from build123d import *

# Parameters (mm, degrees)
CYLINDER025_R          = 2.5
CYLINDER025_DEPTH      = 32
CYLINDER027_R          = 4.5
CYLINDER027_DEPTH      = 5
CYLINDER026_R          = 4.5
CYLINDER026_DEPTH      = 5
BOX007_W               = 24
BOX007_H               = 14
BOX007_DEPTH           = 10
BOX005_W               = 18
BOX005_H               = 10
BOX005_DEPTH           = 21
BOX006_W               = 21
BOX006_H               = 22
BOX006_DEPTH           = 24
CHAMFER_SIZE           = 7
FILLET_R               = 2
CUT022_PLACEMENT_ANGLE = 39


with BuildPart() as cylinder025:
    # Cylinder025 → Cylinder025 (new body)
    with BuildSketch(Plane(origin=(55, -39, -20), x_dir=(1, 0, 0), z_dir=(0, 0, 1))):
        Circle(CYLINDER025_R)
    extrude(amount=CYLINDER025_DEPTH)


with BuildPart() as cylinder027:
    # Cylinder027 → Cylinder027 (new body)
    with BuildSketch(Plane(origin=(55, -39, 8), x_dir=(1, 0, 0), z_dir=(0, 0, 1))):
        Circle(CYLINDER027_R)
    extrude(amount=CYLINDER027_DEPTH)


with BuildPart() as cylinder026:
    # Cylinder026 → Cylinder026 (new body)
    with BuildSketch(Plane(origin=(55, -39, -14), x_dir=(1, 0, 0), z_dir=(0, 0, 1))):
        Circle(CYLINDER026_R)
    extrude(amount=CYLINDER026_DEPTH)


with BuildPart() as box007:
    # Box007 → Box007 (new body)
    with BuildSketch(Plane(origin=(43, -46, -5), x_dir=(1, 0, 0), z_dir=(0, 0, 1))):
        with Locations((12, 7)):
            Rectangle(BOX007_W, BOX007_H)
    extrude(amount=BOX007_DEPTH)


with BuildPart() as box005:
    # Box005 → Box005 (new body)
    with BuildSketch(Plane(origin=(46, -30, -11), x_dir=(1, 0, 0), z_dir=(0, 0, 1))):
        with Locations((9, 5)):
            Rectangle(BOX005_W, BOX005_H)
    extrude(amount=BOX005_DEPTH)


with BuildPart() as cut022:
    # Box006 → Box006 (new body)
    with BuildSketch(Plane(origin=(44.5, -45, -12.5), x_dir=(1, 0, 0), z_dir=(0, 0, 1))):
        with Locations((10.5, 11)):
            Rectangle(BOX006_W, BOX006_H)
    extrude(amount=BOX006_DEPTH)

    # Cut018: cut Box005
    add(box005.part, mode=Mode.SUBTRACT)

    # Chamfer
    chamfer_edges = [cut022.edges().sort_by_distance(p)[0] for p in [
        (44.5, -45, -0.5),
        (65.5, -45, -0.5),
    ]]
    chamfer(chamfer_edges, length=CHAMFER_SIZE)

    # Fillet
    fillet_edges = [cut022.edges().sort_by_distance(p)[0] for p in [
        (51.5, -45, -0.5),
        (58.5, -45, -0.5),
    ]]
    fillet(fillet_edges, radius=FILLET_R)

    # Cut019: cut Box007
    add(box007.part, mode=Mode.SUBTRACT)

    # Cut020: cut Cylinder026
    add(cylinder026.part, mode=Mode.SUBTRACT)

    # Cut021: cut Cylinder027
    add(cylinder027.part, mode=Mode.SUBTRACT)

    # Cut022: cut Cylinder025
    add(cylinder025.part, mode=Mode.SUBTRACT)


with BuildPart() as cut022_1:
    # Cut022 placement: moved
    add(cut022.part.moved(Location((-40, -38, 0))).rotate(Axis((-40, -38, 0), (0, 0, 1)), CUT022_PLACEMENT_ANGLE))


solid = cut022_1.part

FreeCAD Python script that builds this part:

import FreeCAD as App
import Part
import Sketcher

V = App.Vector
Q = App.Units.Quantity


def edges_at(feature, points):
    """Names of the edges that pass closest to the given points."""
    edges = feature.Shape.Edges
    near = lambda p: min(range(len(edges)), key=lambda i: edges[i].distToShape(Part.Vertex(*p))[0])
    return sorted({f"Edge{near(p) + 1}" for p in points})

doc = App.newDocument("Part")
body = doc.addObject("PartDesign::Body", "Body")

# Sketch on XY plane
sketch1 = doc.addObject("Sketcher::SketchObject", "Sketch")
body.addObject(sketch1)
sketch1.AttachmentSupport = (doc.XY_Plane, [""])
sketch1.MapMode = "FlatFace"
sketch1.AttachmentOffset = App.Placement(V(0, 0, -20), App.Rotation())
sketch1.addGeometry(Part.Circle(V(55, -39, 0), V(0, 0, 1), 2.5), False)
sketch1.addConstraint([
    Sketcher.Constraint("Diameter", 0, Q("5 mm")),
    Sketcher.Constraint("DistanceX", -1, 1, 0, 3, Q("55 mm")),
    Sketcher.Constraint("DistanceY", 0, 3, -1, 1, Q("39 mm")),
])
pad1 = doc.addObject("PartDesign::Pad", "Pad")
body.addObject(pad1)
pad1.Profile = sketch1
pad1.Length = 32
body2 = doc.addObject("PartDesign::Body", "Body001")

# Sketch on XY plane
sketch2 = doc.addObject("Sketcher::SketchObject", "Sketch001")
body2.addObject(sketch2)
sketch2.AttachmentSupport = (doc.getObject("XY_Plane001"), [""])
sketch2.MapMode = "FlatFace"
sketch2.AttachmentOffset = App.Placement(V(0, 0, 8), App.Rotation())
sketch2.addGeometry(Part.Circle(V(55, -39, 0), V(0, 0, 1), 4.5), False)
sketch2.addConstraint([
    Sketcher.Constraint("Diameter", 0, Q("9 mm")),
    Sketcher.Constraint("DistanceX", -1, 1, 0, 3, Q("55 mm")),
    Sketcher.Constraint("DistanceY", 0, 3, -1, 1, Q("39 mm")),
])
pad2 = doc.addObject("PartDesign::Pad", "Pad001")
body2.addObject(pad2)
pad2.Profile = sketch2
pad2.Length = 5
body3 = doc.addObject("PartDesign::Body", "Body002")

# Sketch on XY plane
sketch3 = doc.addObject("Sketcher::SketchObject", "Sketch002")
body3.addObject(sketch3)
sketch3.AttachmentSupport = (doc.getObject("XY_Plane002"), [""])
sketch3.MapMode = "FlatFace"
sketch3.AttachmentOffset = App.Placement(V(0, 0, -14), App.Rotation())
sketch3.addGeometry(Part.Circle(V(55, -39, 0), V(0, 0, 1), 4.5), False)
sketch3.addConstraint([
    Sketcher.Constraint("Diameter", 0, Q("9 mm")),
    Sketcher.Constraint("DistanceX", -1, 1, 0, 3, Q("55 mm")),
    Sketcher.Constraint("DistanceY", 0, 3, -1, 1, Q("39 mm")),
])
pad3 = doc.addObject("PartDesign::Pad", "Pad002")
body3.addObject(pad3)
pad3.Profile = sketch3
pad3.Length = 5
body4 = doc.addObject("PartDesign::Body", "Body003")

# Sketch on XY plane
sketch4 = doc.addObject("Sketcher::SketchObject", "Sketch003")
body4.addObject(sketch4)
sketch4.AttachmentSupport = (doc.getObject("XY_Plane003"), [""])
sketch4.MapMode = "FlatFace"
sketch4.AttachmentOffset = App.Placement(V(0, 0, -5), App.Rotation())
sketch4.addGeometry([
    Part.LineSegment(V(43, -32, 0), V(43, -46, 0)),
    Part.LineSegment(V(43, -46, 0), V(67, -46, 0)),
    Part.LineSegment(V(67, -46, 0), V(67, -32, 0)),
    Part.LineSegment(V(67, -32, 0), V(43, -32, 0)),
], False)
sketch4.addConstraint([
    Sketcher.Constraint("Coincident", 0, 2, 1, 1),
    Sketcher.Constraint("Coincident", 1, 2, 2, 1),
    Sketcher.Constraint("Coincident", 2, 2, 3, 1),
    Sketcher.Constraint("Coincident", 3, 2, 0, 1),
    Sketcher.Constraint("Vertical", 0),
    Sketcher.Constraint("Horizontal", 1),
    Sketcher.Constraint("Vertical", 2),
    Sketcher.Constraint("Horizontal", 3),
    Sketcher.Constraint("DistanceX", 1, 1, 1, 2, Q("24 mm")),
    Sketcher.Constraint("DistanceY", 0, 2, 0, 1, Q("14 mm")),
    Sketcher.Constraint("DistanceX", -1, 1, 0, 2, Q("43 mm")),
    Sketcher.Constraint("DistanceY", 0, 2, -1, 1, Q("46 mm")),
])
pad4 = doc.addObject("PartDesign::Pad", "Pad003")
body4.addObject(pad4)
pad4.Profile = sketch4
pad4.Length = 10
body5 = doc.addObject("PartDesign::Body", "Body004")

# Sketch on XY plane
sketch5 = doc.addObject("Sketcher::SketchObject", "Sketch004")
body5.addObject(sketch5)
sketch5.AttachmentSupport = (doc.getObject("XY_Plane004"), [""])
sketch5.MapMode = "FlatFace"
sketch5.AttachmentOffset = App.Placement(V(0, 0, -11), App.Rotation())
sketch5.addGeometry([
    Part.LineSegment(V(46, -20, 0), V(46, -30, 0)),
    Part.LineSegment(V(46, -30, 0), V(64, -30, 0)),
    Part.LineSegment(V(64, -30, 0), V(64, -20, 0)),
    Part.LineSegment(V(64, -20, 0), V(46, -20, 0)),
], False)
sketch5.addConstraint([
    Sketcher.Constraint("Coincident", 0, 2, 1, 1),
    Sketcher.Constraint("Coincident", 1, 2, 2, 1),
    Sketcher.Constraint("Coincident", 2, 2, 3, 1),
    Sketcher.Constraint("Coincident", 3, 2, 0, 1),
    Sketcher.Constraint("Vertical", 0),
    Sketcher.Constraint("Horizontal", 1),
    Sketcher.Constraint("Vertical", 2),
    Sketcher.Constraint("Horizontal", 3),
    Sketcher.Constraint("DistanceX", 1, 1, 1, 2, Q("18 mm")),
    Sketcher.Constraint("DistanceY", 0, 2, 0, 1, Q("10 mm")),
    Sketcher.Constraint("DistanceX", -1, 1, 0, 2, Q("46 mm")),
    Sketcher.Constraint("DistanceY", 0, 2, -1, 1, Q("30 mm")),
])
pad5 = doc.addObject("PartDesign::Pad", "Pad004")
body5.addObject(pad5)
pad5.Profile = sketch5
pad5.Length = 21
body6 = doc.addObject("PartDesign::Body", "Body005")

# Sketch on XY plane
sketch6 = doc.addObject("Sketcher::SketchObject", "Sketch005")
body6.addObject(sketch6)
sketch6.AttachmentSupport = (doc.getObject("XY_Plane005"), [""])
sketch6.MapMode = "FlatFace"
sketch6.AttachmentOffset = App.Placement(V(0, 0, -12.5), App.Rotation())
sketch6.addGeometry([
    Part.LineSegment(V(44, -23, 0), V(44, -45, 0)),
    Part.LineSegment(V(44, -45, 0), V(66, -45, 0)),
    Part.LineSegment(V(66, -45, 0), V(66, -23, 0)),
    Part.LineSegment(V(66, -23, 0), V(44, -23, 0)),
], False)
sketch6.addConstraint([
    Sketcher.Constraint("Coincident", 0, 2, 1, 1),
    Sketcher.Constraint("Coincident", 1, 2, 2, 1),
    Sketcher.Constraint("Coincident", 2, 2, 3, 1),
    Sketcher.Constraint("Coincident", 3, 2, 0, 1),
    Sketcher.Constraint("Vertical", 0),
    Sketcher.Constraint("Horizontal", 1),
    Sketcher.Constraint("Vertical", 2),
    Sketcher.Constraint("Horizontal", 3),
    Sketcher.Constraint("DistanceX", 1, 1, 1, 2, Q("21 mm")),
    Sketcher.Constraint("DistanceY", 0, 2, 0, 1, Q("22 mm")),
    Sketcher.Constraint("DistanceY", 0, 2, -1, 1, Q("45 mm")),
    Sketcher.Constraint("DistanceX", -1, 1, 0, 2, Q("44.5 mm")),
])
pad6 = doc.addObject("PartDesign::Pad", "Pad005")
body6.addObject(pad6)
pad6.Profile = sketch6
pad6.Length = 24
doc.recompute()

boolean = doc.addObject("PartDesign::Boolean", "Boolean")
body6.addObject(boolean)
boolean.Type = "Cut"
boolean.addObjects([body5])
doc.recompute()

chamfer = doc.addObject("PartDesign::Chamfer", "Chamfer")
body6.addObject(chamfer)
chamfer.Base = (boolean, edges_at(boolean, [(44.5, -45, -0.5), (65.5, -45, -0.5)]))
chamfer.Size = 7
doc.recompute()

fillet = doc.addObject("PartDesign::Fillet", "Fillet")
body6.addObject(fillet)
fillet.Base = (chamfer, edges_at(chamfer, [(51.5, -45, -0.5), (58.5, -45, -0.5)]))
fillet.Radius = 2
doc.recompute()

boolean2 = doc.addObject("PartDesign::Boolean", "Boolean001")
body6.addObject(boolean2)
boolean2.Type = "Cut"
boolean2.addObjects([body4])
doc.recompute()

boolean3 = doc.addObject("PartDesign::Boolean", "Boolean002")
body6.addObject(boolean3)
boolean3.Type = "Cut"
boolean3.addObjects([body3])
doc.recompute()

boolean4 = doc.addObject("PartDesign::Boolean", "Boolean003")
body6.addObject(boolean4)
boolean4.Type = "Cut"
boolean4.addObjects([body2])
doc.recompute()

boolean5 = doc.addObject("PartDesign::Boolean", "Boolean004")
body6.addObject(boolean5)
boolean5.Type = "Cut"
boolean5.addObjects([body])
body7 = doc.addObject("PartDesign::Body", "Body006")
doc.recompute()

body6.Placement = App.Placement(V(-40, -38, 0), App.Rotation(V(0, 0, 1), 39))
boolean6 = doc.addObject("PartDesign::Boolean", "Boolean005")
body7.addObject(boolean6)
boolean6.Type = "Fuse"
boolean6.addObjects([body6])

doc.recompute()
